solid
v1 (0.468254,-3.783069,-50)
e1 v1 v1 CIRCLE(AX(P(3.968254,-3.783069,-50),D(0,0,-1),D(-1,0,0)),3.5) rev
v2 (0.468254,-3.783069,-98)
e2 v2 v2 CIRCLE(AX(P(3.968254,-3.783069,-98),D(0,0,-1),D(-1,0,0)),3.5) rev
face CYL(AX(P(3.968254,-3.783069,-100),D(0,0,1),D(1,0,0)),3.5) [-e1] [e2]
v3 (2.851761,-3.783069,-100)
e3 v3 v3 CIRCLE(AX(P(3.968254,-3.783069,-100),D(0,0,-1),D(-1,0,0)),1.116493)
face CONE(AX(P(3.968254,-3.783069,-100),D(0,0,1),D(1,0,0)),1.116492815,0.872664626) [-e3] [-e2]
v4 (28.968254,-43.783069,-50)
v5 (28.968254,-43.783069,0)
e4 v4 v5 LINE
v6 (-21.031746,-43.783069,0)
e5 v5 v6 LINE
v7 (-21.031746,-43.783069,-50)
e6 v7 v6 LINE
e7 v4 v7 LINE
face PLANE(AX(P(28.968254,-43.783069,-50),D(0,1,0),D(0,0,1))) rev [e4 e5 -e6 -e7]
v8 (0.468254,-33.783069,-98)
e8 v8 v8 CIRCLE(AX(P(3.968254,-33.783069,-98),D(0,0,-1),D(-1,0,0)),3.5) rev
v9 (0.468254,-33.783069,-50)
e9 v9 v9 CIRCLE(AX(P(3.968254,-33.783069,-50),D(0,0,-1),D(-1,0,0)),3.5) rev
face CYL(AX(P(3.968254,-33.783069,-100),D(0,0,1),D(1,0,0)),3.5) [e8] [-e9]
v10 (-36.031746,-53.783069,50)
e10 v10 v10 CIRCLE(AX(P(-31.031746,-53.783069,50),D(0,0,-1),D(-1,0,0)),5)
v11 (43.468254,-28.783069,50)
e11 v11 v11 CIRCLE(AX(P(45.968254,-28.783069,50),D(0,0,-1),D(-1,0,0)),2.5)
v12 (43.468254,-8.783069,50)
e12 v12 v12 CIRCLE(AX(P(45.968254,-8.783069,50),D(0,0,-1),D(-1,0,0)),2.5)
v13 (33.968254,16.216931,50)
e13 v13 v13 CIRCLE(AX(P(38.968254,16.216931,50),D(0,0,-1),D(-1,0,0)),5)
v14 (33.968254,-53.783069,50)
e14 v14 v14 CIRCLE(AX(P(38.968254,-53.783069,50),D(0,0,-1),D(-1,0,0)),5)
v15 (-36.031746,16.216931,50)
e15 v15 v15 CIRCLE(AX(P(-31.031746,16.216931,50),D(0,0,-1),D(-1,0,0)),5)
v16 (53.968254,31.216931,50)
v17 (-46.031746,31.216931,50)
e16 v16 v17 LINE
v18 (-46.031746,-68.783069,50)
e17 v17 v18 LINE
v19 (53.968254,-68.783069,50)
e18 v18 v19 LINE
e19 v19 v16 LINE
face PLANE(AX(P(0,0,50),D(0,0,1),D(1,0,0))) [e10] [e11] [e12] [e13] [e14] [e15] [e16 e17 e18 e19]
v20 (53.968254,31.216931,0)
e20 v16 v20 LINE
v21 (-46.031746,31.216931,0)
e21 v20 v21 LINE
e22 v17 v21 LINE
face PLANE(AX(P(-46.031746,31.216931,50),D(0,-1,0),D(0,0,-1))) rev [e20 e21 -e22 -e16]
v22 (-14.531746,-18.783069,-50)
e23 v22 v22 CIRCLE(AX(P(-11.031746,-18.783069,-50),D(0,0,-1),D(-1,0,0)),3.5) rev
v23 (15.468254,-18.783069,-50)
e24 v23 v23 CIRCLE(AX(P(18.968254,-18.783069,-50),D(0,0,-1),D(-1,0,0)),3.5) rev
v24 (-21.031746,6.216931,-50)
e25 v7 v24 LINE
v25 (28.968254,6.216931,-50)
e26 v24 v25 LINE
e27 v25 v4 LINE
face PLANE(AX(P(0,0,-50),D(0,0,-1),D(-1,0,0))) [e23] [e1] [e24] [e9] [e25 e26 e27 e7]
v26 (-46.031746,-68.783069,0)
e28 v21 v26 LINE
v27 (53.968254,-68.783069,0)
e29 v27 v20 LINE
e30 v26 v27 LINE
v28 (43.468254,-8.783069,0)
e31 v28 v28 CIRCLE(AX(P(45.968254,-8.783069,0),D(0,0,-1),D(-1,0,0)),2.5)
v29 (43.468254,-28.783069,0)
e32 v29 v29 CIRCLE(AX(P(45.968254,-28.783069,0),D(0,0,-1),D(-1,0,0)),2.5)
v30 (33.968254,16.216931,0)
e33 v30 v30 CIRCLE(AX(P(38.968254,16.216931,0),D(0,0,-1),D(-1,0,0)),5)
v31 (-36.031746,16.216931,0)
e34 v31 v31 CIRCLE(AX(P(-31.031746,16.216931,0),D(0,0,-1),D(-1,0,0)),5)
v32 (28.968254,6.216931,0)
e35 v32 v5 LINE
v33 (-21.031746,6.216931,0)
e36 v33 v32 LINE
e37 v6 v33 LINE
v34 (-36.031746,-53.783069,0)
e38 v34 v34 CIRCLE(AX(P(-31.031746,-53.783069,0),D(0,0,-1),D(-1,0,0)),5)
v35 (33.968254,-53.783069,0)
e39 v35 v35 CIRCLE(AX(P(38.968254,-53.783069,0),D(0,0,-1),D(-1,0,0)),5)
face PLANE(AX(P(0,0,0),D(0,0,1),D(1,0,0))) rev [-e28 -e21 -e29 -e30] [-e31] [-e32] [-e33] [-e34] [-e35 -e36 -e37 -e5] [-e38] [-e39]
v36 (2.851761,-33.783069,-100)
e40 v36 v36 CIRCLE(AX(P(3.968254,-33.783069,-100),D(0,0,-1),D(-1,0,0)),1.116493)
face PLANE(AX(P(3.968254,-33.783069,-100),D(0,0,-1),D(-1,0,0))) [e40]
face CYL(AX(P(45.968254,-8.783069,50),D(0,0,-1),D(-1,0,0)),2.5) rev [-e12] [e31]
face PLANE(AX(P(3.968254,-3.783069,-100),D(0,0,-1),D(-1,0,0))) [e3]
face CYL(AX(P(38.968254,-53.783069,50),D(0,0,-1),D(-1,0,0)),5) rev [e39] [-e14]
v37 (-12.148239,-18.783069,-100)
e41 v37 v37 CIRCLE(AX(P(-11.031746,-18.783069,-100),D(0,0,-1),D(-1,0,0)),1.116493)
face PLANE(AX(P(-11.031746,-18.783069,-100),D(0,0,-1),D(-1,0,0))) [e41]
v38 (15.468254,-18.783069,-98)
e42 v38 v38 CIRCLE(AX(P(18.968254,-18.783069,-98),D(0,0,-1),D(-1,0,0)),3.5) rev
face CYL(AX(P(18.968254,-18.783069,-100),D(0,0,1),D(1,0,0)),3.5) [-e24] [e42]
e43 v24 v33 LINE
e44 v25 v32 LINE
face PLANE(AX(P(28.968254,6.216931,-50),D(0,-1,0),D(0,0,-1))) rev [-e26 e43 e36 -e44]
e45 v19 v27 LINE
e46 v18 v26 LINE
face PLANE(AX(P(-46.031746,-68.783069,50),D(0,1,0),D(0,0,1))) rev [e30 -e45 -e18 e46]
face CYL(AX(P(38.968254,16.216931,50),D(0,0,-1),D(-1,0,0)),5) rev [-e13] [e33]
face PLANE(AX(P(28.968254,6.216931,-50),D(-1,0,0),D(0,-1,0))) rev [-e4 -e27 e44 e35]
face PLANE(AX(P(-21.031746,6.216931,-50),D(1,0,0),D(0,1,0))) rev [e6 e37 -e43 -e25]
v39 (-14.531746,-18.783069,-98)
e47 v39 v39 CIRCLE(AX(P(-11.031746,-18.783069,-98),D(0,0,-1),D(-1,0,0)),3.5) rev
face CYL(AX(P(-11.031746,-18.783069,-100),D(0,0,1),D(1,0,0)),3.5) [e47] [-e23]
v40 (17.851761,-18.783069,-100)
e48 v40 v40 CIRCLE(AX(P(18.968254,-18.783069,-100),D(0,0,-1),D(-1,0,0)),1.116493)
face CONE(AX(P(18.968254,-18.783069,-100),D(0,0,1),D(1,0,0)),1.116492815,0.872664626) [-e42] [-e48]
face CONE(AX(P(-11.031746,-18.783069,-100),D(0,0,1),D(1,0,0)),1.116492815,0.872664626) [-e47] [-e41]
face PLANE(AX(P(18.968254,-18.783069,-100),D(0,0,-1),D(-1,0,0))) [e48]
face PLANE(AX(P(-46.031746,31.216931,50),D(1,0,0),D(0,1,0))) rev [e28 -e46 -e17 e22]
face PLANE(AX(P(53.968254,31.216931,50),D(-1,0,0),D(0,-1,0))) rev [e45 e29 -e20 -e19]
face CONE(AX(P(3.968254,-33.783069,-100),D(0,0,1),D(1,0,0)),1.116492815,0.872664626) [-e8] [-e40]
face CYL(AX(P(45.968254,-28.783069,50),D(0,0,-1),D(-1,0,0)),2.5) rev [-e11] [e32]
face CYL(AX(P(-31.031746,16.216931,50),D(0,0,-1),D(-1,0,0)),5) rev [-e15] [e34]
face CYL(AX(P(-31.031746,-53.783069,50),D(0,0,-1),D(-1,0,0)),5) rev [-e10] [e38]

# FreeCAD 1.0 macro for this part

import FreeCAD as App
import Part
import Sketcher

V = App.Vector


def edges_at(feature, points):
    """Names of the edges that pass closest to the given points."""
    edges = feature.Shape.Edges
    near = lambda p: min(range(len(edges)), key=lambda i: edges[i].distToShape(Part.Vertex(*p))[0])
    return sorted({f"Edge{near(p) + 1}" for p in points})

doc = App.newDocument("Part")
body = doc.addObject("PartDesign::Body", "Body")

# Sketch on XY plane
sketch1 = doc.addObject("Sketcher::SketchObject", "Sketch")
body.addObject(sketch1)
sketch1.AttachmentSupport = (doc.XY_Plane, [""])
sketch1.MapMode = "FlatFace"
sketch1.addGeometry([
    Part.LineSegment(V(-46, 31, 0), V(-46, -69, 0)),
    Part.LineSegment(V(-46, -69, 0), V(54, -69, 0)),
    Part.LineSegment(V(54, -69, 0), V(54, 31, 0)),
    Part.LineSegment(V(54, 31, 0), V(-46, 31, 0)),
], False)
sketch1.addConstraint([
    Sketcher.Constraint("Coincident", 0, 2, 1, 1),
    Sketcher.Constraint("Coincident", 1, 2, 2, 1),
    Sketcher.Constraint("Coincident", 2, 2, 3, 1),
    Sketcher.Constraint("Coincident", 3, 2, 0, 1),
    Sketcher.Constraint("Vertical", 0),
    Sketcher.Constraint("Horizontal", 1),
    Sketcher.Constraint("Vertical", 2),
    Sketcher.Constraint("Horizontal", 3),
    Sketcher.Constraint("Equal", 3, 0),
    Sketcher.Constraint("DistanceX", 1, 1, 1, 2, 100.0),
    Sketcher.Constraint("DistanceY", 0, 2, -1, 1, 68.783069),
    Sketcher.Constraint("DistanceX", 0, 2, -1, 1, 46.031746),
])
pad1 = doc.addObject("PartDesign::Pad", "Pad")
body.addObject(pad1)
pad1.Profile = sketch1
pad1.Length = 50

# Sketch on XY plane
sketch2 = doc.addObject("Sketcher::SketchObject", "Sketch001")
body.addObject(sketch2)
sketch2.AttachmentSupport = (doc.XY_Plane, [""])
sketch2.MapMode = "FlatFace"
sketch2.addGeometry([
    Part.Circle(V(39, 16, 0), V(0, 0, 1), 5),
    Part.Circle(V(-31, 16, 0), V(0, 0, 1), 5),
    Part.Circle(V(39, -54, 0), V(0, 0, 1), 5),
    Part.Circle(V(-31, -54, 0), V(0, 0, 1), 5),
], False)
sketch2.addConstraint([
    Sketcher.Constraint("Equal", 0, 1),
    Sketcher.Constraint("Equal", 1, 2),
    Sketcher.Constraint("Equal", 2, 3),
    Sketcher.Constraint("Horizontal", 0, 3, 1, 3),
    Sketcher.Constraint("Horizontal", 2, 3, 3, 3),
    Sketcher.Constraint("Vertical", 0, 3, 2, 3),
    Sketcher.Constraint("Vertical", 1, 3, 3, 3),
    Sketcher.Constraint("Diameter", 0, 10.0),
    Sketcher.Constraint("DistanceX", 1, 3, 0, 3, 70.0),
    Sketcher.Constraint("DistanceY", 2, 3, 0, 3, 70.0),
    Sketcher.Constraint("DistanceY", -1, 1, 0, 3, 16.216931),
    Sketcher.Constraint("DistanceX", -1, 1, 0, 3, 38.968254),
])
pocket1 = doc.addObject("PartDesign::Pocket", "Pocket")
body.addObject(pocket1)
pocket1.Profile = sketch2
pocket1.Type = "ThroughAll"
pocket1.Reversed = True

# Sketch on XY plane
sketch3 = doc.addObject("Sketcher::SketchObject", "Sketch002")
body.addObject(sketch3)
sketch3.AttachmentSupport = (doc.XY_Plane, [""])
sketch3.MapMode = "FlatFace"
sketch3.addGeometry([
    Part.Circle(V(46, -8.8, 0), V(0, 0, 1), 2.5),
    Part.Circle(V(46, -28.8, 0), V(0, 0, 1), 2.5),
], False)
sketch3.addConstraint([
    Sketcher.Constraint("Equal", 0, 1),
    Sketcher.Constraint("Vertical", 0, 3, 1, 3),
    Sketcher.Constraint("Diameter", 0, 5.0),
    Sketcher.Constraint("DistanceY", 1, 3, 0, 3, 20.0),
    Sketcher.Constraint("DistanceY", 0, 3, -1, 1, 8.783069),
    Sketcher.Constraint("DistanceX", -1, 1, 0, 3, 45.968254),
])
pocket2 = doc.addObject("PartDesign::Pocket", "Pocket001")
body.addObject(pocket2)
pocket2.Profile = sketch3
pocket2.Type = "ThroughAll"
pocket2.Reversed = True

# Sketch on XY plane
sketch4 = doc.addObject("Sketcher::SketchObject", "Sketch003")
body.addObject(sketch4)
sketch4.AttachmentSupport = (doc.XY_Plane, [""])
sketch4.MapMode = "FlatFace"
sketch4.addGeometry([
    Part.LineSegment(V(29, 6, 0), V(29, -44, 0)),
    Part.LineSegment(V(29, -44, 0), V(-21, -44, 0)),
    Part.LineSegment(V(-21, -44, 0), V(-21, 6, 0)),
    Part.LineSegment(V(-21, 6, 0), V(29, 6, 0)),
], False)
sketch4.addConstraint([
    Sketcher.Constraint("Coincident", 0, 2, 1, 1),
    Sketcher.Constraint("Coincident", 1, 2, 2, 1),
    Sketcher.Constraint("Coincident", 2, 2, 3, 1),
    Sketcher.Constraint("Coincident", 3, 2, 0, 1),
    Sketcher.Constraint("Vertical", 0),
    Sketcher.Constraint("Horizontal", 1),
    Sketcher.Constraint("Vertical", 2),
    Sketcher.Constraint("Horizontal", 3),
    Sketcher.Constraint("Equal", 3, 0),
    Sketcher.Constraint("DistanceX", 1, 2, 1, 1, 50.0),
    Sketcher.Constraint("DistanceY", 0, 2, -1, 1, 43.783069),
    Sketcher.Constraint("DistanceX", -1, 1, 0, 2, 28.968254),
])
pad2 = doc.addObject("PartDesign::Pad", "Pad001")
body.addObject(pad2)
pad2.Profile = sketch4
pad2.Length = 50
pad2.Reversed = True

# Sketch on XY plane
sketch5 = doc.addObject("Sketcher::SketchObject", "Sketch004")
body.addObject(sketch5)
sketch5.AttachmentSupport = (doc.XY_Plane, [""])
sketch5.MapMode = "FlatFace"
sketch5.addGeometry([
    Part.Circle(V(4, -3.8, 0), V(0, 0, 1), 3.5),
    Part.Circle(V(19, -18.8, 0), V(0, 0, 1), 3.5),
    Part.Circle(V(4, -33.8, 0), V(0, 0, 1), 3.5),
    Part.Circle(V(-11, -18.8, 0), V(0, 0, 1), 3.5),
], False)
sketch5.addConstraint([
    Sketcher.Constraint("Equal", 0, 1),
    Sketcher.Constraint("Equal", 1, 2),
    Sketcher.Constraint("Equal", 2, 3),
    Sketcher.Constraint("Horizontal", 1, 3, 3, 3),
    Sketcher.Constraint("Vertical", 0, 3, 2, 3),
    Sketcher.Constraint("Diameter", 0, 7.0),
    Sketcher.Constraint("DistanceX", 0, 3, 1, 3, 15.0),
    Sketcher.Constraint("DistanceY", 1, 3, 0, 3, 15.0),
    Sketcher.Constraint("DistanceY", 2, 3, 1, 3, 15.0),
    Sketcher.Constraint("DistanceX", 3, 3, 2, 3, 15.0),
    Sketcher.Constraint("DistanceY", 0, 3, -1, 1, 3.783069),
    Sketcher.Constraint("DistanceX", -1, 1, 0, 3, 3.968254),
])
pad3 = doc.addObject("PartDesign::Pad", "Pad002")
body.addObject(pad3)
pad3.Profile = sketch5
pad3.Length = 100
pad3.Reversed = True
doc.recompute()

chamfer = doc.addObject("PartDesign::Chamfer", "Chamfer")
body.addObject(chamfer)
chamfer.Base = (pad3, edges_at(pad3, [(7.468, -3.783, -100)]))
chamfer.ChamferType = "Two distances"
chamfer.Size = 2
chamfer.Size2 = 2.383507
doc.recompute()

chamfer2 = doc.addObject("PartDesign::Chamfer", "Chamfer001")
body.addObject(chamfer2)
chamfer2.Base = (chamfer, edges_at(chamfer, [(22.468, -18.783, -100)]))
chamfer2.ChamferType = "Two distances"
chamfer2.Size = 2
chamfer2.Size2 = 2.383507
doc.recompute()

chamfer3 = doc.addObject("PartDesign::Chamfer", "Chamfer002")
body.addObject(chamfer3)
chamfer3.Base = (chamfer2, edges_at(chamfer2, [(7.468, -33.783, -100)]))
chamfer3.ChamferType = "Two distances"
chamfer3.Size = 2
chamfer3.Size2 = 2.383507
doc.recompute()

chamfer4 = doc.addObject("PartDesign::Chamfer", "Chamfer003")
body.addObject(chamfer4)
chamfer4.Base = (chamfer3, edges_at(chamfer3, [(-7.532, -18.783, -100)]))
chamfer4.ChamferType = "Two distances"
chamfer4.Size = 2
chamfer4.Size2 = 2.383507

doc.recompute()
